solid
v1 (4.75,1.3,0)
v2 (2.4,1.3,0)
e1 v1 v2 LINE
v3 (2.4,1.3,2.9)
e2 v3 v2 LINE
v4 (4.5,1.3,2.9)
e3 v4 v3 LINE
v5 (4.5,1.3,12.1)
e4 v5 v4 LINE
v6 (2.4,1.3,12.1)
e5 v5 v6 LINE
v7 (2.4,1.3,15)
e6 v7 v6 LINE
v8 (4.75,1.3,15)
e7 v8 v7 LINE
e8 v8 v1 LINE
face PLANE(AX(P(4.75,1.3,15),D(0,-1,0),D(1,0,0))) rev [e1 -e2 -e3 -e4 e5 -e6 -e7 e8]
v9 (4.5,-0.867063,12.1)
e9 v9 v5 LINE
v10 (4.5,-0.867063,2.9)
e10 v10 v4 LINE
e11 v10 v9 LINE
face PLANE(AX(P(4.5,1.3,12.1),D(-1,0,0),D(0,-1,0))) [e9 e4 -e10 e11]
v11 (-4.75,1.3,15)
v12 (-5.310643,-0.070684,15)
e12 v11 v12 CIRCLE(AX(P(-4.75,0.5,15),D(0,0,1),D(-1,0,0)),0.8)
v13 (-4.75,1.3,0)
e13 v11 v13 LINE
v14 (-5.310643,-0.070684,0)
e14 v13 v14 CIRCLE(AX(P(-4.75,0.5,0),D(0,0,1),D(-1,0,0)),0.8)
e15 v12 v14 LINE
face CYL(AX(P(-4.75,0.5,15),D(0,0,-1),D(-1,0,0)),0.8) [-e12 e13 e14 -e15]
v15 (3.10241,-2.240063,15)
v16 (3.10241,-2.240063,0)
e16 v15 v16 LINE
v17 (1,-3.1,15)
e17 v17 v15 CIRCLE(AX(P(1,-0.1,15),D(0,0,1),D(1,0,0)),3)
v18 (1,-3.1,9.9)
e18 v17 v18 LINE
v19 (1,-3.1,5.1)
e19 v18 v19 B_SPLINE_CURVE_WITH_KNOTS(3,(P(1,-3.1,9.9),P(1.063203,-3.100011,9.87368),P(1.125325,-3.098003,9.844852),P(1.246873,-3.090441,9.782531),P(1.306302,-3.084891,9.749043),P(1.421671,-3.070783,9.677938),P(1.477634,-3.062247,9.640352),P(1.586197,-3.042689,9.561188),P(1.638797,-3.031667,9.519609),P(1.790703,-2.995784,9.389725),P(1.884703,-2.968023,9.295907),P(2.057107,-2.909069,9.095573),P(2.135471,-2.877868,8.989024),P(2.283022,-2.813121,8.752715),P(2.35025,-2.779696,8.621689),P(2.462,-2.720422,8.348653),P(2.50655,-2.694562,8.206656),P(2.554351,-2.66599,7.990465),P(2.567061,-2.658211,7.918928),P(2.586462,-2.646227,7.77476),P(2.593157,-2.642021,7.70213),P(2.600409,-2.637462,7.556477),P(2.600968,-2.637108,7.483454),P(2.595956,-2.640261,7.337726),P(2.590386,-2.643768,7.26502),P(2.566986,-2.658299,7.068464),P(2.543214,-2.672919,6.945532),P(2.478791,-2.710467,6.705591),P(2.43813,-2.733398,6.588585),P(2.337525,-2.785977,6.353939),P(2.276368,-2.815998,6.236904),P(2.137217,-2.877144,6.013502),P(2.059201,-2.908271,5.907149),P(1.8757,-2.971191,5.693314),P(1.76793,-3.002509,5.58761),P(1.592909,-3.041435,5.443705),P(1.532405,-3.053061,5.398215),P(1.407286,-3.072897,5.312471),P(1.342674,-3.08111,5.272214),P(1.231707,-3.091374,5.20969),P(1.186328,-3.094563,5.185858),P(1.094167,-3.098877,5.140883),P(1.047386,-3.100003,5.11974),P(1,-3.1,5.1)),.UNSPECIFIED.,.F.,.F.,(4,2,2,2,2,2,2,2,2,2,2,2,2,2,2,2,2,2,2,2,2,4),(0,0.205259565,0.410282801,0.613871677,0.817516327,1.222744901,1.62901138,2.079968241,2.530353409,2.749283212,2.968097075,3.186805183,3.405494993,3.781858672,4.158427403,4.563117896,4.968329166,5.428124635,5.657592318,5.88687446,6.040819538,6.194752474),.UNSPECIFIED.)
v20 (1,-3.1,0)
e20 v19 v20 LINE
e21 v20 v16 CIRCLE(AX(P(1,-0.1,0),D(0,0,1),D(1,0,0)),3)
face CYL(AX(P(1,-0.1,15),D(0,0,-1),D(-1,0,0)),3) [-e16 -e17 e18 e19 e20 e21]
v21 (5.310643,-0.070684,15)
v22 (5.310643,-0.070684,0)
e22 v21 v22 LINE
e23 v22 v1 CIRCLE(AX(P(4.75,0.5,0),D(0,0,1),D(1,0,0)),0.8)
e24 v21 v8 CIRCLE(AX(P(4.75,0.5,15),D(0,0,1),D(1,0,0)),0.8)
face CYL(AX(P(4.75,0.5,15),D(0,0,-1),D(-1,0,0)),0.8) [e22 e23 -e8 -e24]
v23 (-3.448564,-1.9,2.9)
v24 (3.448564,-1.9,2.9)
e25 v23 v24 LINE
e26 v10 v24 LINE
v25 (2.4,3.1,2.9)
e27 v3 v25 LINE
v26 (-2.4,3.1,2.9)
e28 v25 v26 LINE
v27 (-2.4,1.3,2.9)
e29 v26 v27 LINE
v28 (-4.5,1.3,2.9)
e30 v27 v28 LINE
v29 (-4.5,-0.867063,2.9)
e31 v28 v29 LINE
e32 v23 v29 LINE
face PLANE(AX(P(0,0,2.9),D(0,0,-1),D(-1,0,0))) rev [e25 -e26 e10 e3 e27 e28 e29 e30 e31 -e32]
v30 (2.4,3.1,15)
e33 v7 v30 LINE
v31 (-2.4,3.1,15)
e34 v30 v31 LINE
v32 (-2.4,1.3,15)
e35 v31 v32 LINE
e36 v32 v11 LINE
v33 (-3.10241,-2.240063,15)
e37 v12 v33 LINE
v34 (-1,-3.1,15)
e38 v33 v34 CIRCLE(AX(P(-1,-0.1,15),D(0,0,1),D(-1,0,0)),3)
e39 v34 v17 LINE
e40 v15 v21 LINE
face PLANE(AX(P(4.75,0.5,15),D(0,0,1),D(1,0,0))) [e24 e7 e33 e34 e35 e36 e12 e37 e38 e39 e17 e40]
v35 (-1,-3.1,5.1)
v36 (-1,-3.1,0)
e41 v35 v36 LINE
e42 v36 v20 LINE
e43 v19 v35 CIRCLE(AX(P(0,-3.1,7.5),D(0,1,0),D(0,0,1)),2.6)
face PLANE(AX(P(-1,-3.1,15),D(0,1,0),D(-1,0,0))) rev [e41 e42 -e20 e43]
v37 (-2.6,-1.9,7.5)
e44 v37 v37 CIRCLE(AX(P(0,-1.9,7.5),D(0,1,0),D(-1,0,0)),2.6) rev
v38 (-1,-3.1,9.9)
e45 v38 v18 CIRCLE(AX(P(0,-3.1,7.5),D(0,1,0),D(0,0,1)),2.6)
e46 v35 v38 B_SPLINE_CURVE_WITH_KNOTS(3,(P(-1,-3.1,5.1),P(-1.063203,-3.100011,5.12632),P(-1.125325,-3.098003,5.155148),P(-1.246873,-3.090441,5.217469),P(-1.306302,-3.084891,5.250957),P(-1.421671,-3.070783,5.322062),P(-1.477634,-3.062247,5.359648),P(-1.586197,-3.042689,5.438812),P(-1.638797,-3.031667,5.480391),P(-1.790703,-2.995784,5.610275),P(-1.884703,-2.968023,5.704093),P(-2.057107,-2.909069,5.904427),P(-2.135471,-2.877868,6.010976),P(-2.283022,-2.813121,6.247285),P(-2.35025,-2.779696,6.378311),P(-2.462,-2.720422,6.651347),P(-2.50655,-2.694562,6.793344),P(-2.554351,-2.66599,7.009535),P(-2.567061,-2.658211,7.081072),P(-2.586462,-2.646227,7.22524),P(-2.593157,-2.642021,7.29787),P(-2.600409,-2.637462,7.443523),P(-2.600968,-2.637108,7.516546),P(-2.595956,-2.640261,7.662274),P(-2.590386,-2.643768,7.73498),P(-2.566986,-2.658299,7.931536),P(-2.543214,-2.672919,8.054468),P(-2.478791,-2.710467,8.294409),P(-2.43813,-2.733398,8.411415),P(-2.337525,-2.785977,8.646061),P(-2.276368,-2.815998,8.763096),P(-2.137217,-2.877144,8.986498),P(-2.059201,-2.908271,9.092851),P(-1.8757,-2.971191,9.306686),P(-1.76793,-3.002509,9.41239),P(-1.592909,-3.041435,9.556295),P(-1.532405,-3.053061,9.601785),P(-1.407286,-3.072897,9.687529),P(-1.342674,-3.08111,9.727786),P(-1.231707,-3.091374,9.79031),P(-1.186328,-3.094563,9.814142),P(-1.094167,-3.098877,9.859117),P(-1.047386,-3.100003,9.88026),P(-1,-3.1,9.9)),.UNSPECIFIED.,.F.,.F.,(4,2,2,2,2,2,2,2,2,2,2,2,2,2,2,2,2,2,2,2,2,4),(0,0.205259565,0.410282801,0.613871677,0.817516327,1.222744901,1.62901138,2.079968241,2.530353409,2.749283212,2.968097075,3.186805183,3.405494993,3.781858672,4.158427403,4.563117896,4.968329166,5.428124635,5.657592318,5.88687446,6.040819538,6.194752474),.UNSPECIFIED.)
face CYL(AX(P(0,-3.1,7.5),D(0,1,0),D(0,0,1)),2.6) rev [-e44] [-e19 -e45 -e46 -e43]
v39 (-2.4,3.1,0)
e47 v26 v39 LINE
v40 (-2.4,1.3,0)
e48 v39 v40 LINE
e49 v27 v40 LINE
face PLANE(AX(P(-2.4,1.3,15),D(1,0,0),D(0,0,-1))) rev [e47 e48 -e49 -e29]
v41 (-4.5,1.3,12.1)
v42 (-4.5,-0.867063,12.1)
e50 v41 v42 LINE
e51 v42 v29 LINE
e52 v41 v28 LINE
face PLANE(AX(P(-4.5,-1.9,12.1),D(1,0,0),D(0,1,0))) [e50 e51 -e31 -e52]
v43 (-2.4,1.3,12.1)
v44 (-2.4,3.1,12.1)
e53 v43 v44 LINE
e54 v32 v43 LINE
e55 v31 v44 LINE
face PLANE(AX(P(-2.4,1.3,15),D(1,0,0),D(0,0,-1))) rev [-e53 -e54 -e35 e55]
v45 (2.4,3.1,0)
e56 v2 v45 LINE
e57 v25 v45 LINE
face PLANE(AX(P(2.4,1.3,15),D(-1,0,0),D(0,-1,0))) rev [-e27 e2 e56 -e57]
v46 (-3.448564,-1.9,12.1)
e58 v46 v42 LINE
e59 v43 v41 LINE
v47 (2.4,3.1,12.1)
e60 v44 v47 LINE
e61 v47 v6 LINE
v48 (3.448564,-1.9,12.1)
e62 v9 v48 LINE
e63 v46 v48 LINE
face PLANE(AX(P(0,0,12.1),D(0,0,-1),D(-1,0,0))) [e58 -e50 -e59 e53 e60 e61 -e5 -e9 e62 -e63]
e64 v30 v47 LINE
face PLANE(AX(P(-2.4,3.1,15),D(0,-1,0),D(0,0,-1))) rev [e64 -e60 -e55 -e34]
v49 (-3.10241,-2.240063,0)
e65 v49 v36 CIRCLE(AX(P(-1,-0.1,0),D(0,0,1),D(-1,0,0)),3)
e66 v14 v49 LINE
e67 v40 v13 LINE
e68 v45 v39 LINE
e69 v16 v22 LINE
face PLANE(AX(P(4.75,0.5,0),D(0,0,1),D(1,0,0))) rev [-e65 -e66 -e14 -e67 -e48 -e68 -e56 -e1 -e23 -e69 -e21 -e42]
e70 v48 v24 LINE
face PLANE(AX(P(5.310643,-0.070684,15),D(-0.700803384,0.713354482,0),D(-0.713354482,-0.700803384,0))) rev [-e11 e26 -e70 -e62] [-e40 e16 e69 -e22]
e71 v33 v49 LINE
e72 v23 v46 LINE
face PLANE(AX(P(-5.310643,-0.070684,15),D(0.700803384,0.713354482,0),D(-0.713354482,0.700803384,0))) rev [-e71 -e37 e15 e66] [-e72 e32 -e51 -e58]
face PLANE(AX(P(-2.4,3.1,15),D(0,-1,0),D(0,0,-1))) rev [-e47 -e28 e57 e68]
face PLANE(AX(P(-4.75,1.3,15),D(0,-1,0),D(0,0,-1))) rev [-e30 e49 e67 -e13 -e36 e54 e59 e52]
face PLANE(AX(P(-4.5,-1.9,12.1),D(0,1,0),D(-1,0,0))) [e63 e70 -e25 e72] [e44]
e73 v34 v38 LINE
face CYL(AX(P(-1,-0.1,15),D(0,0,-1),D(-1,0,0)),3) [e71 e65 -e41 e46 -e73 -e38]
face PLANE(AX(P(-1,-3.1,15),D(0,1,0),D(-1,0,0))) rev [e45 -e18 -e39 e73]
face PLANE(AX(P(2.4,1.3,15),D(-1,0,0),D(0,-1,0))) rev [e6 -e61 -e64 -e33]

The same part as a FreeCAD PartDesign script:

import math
import FreeCAD as App
import Part
import Sketcher
from FreeCAD import Vector
Q = App.Units.Quantity


def add_polygon(sketch, points):
    """Adds a closed chain of lines whose ends are joined by coincident constraints."""
    first, n = sketch.GeometryCount, len(points)
    for a, b in zip(points, points[1:] + points[:1]):
        sketch.addGeometry(Part.LineSegment(App.Vector(*a, 0), App.Vector(*b, 0)), False)
    for i in range(n):
        sketch.addConstraint(Sketcher.Constraint("Coincident", first + i, 2, first + (i + 1) % n, 1))

doc = App.newDocument("Part")
body = doc.addObject("PartDesign::Body", "Body")

sketch1 = body.newObject("Sketcher::SketchObject", "Sketch")
sketch1.AttachmentSupport = (doc.getObject("XY_Plane"), [""])
sketch1.MapMode = "FlatFace"
sketch1.addGeometry([
    Part.LineSegment(Vector(-2.4, 1.3, 0), Vector(-4.8, 1.3, 0)),
    Part.ArcOfCircle(Part.Circle(Vector(-4.7, 0.5, 0), Vector(0, 0, 1), 0.8), math.radians(90), math.radians(226)),
    Part.LineSegment(Vector(-5.3, -0.1, 0), Vector(-3.1, -2.2, 0)),
    Part.ArcOfCircle(Part.Circle(Vector(-1, -0.1, 0), Vector(0, 0, 1), 3), math.radians(-134), math.radians(-90)),
    Part.LineSegment(Vector(-1, -3.1, 0), Vector(1, -3.1, 0)),
    Part.ArcOfCircle(Part.Circle(Vector(1, -0.1, 0), Vector(0, 0, 1), 3), math.radians(-90), math.radians(-46)),
    Part.LineSegment(Vector(3.1, -2.2, 0), Vector(5.3, -0.1, 0)),
    Part.ArcOfCircle(Part.Circle(Vector(4.7, 0.5, 0), Vector(0, 0, 1), 0.8), math.radians(-46), math.radians(90)),
    Part.LineSegment(Vector(4.8, 1.3, 0), Vector(2.4, 1.3, 0)),
    Part.LineSegment(Vector(2.4, 1.3, 0), Vector(2.4, 3.1, 0)),
    Part.LineSegment(Vector(2.4, 3.1, 0), Vector(-2.4, 3.1, 0)),
    Part.LineSegment(Vector(-2.4, 3.1, 0), Vector(-2.4, 1.3, 0)),
], False)
sketch1.addConstraint([
    Sketcher.Constraint("Tangent", 0, 2, 1, 1),
    Sketcher.Constraint("Tangent", 1, 2, 2, 1),
    Sketcher.Constraint("Tangent", 2, 2, 3, 1),
    Sketcher.Constraint("Tangent", 3, 2, 4, 1),
    Sketcher.Constraint("Tangent", 4, 2, 5, 1),
    Sketcher.Constraint("Tangent", 5, 2, 6, 1),
    Sketcher.Constraint("Tangent", 6, 2, 7, 1),
    Sketcher.Constraint("Tangent", 7, 2, 8, 1),
    Sketcher.Constraint("Coincident", 8, 2, 9, 1),
    Sketcher.Constraint("Coincident", 9, 2, 10, 1),
    Sketcher.Constraint("Coincident", 10, 2, 11, 1),
    Sketcher.Constraint("Coincident", 11, 2, 0, 1),
    Sketcher.Constraint("Horizontal", 0),
    Sketcher.Constraint("Horizontal", 4),
    Sketcher.Constraint("Horizontal", 8),
    Sketcher.Constraint("Vertical", 9),
    Sketcher.Constraint("Horizontal", 10),
    Sketcher.Constraint("Vertical", 11),
    Sketcher.Constraint("Equal", 3, 5),
    Sketcher.Constraint("Equal", 1, 7),
    Sketcher.Constraint("Symmetric", 1, 3, 7, 3, -2),
    Sketcher.Constraint("Horizontal", 2, 2, 5, 2),
    Sketcher.Constraint("Equal", 0, 8),
    Sketcher.Constraint("Radius", 3, Q("3 mm")),
    Sketcher.Constraint("Radius", 1, Q("0.8 mm")),
    Sketcher.Constraint("DistanceX", 4, 1, 4, 2, Q("2 mm")),
    Sketcher.Constraint("DistanceX", 10, 2, 10, 1, Q("4.8 mm")),
    Sketcher.Constraint("DistanceY", 9, 1, 9, 2, Q("1.8 mm")),
    Sketcher.Constraint("DistanceX", 0, 2, 0, 1, Q("2.35 mm")),
    Sketcher.Constraint("DistanceY", -1, 1, 1, 3, Q("0.5 mm")),
    Sketcher.Constraint("DistanceY", 3, 3, -1, 1, Q("0.1 mm")),
])
pad1 = body.newObject("PartDesign::Pad", "Pad")
pad1.Profile = sketch1
pad1.Length = 15

sketch2 = body.newObject("Sketcher::SketchObject", "Sketch001")
sketch2.AttachmentSupport = (doc.getObject("XZ_Plane"), [""])
sketch2.MapMode = "FlatFace"
sketch2.AttachmentOffset = App.Placement(Vector(0, 0, -3.1), App.Rotation())
sketch2.addGeometry(Part.Circle(Vector(0, 7.5, 0), Vector(0, 0, 1), 2.6), False)
sketch2.addConstraint([
    Sketcher.Constraint("PointOnObject", 0, 3, -2),
    Sketcher.Constraint("Diameter", 0, Q("5.2 mm")),
    Sketcher.Constraint("DistanceY", -1, 1, 0, 3, Q("7.5 mm")),
])
pocket1 = body.newObject("PartDesign::Pocket", "Pocket")
pocket1.Profile = sketch2
pocket1.Type = "ThroughAll"
pocket1.Reversed = True

sketch3 = body.newObject("Sketcher::SketchObject", "Sketch002")
sketch3.AttachmentSupport = (doc.getObject("XY_Plane"), [""])
sketch3.MapMode = "FlatFace"
sketch3.AttachmentOffset = App.Placement(Vector(0, 0, 7.5), App.Rotation())
add_polygon(sketch3, [(-4.5, 1.3), (-4.5, -1.9), (4.5, -1.9), (4.5, 1.3)])
sketch3.addConstraint([
    Sketcher.Constraint("Vertical", 0),
    Sketcher.Constraint("Horizontal", 1),
    Sketcher.Constraint("Vertical", 2),
    Sketcher.Constraint("Horizontal", 3),
    Sketcher.Constraint("DistanceX", 1, 1, 1, 2, Q("9 mm")),
    Sketcher.Constraint("DistanceY", 0, 2, 0, 1, Q("3.2 mm")),
    Sketcher.Constraint("DistanceX", 0, 2, -1, 1, Q("4.5 mm")),
    Sketcher.Constraint("DistanceY", 0, 2, -1, 1, Q("1.9 mm")),
])
pocket2 = body.newObject("PartDesign::Pocket", "Pocket001")
pocket2.Profile = sketch3
pocket2.Type = "TwoLengths"
pocket2.Length = 4.6
pocket2.Length2 = 4.6
pocket2.Reversed = True

sketch4 = body.newObject("Sketcher::SketchObject", "Sketch003")
sketch4.AttachmentSupport = (doc.getObject("XZ_Plane"), [""])
sketch4.MapMode = "FlatFace"
sketch4.AttachmentOffset = App.Placement(Vector(0, 0, -1.3), App.Rotation())
add_polygon(sketch4, [(-4, 3), (-4, 12), (4, 12), (4, 3)])
sketch4.addConstraint([
    Sketcher.Constraint("Vertical", 0),
    Sketcher.Constraint("Horizontal", 1),
    Sketcher.Constraint("Vertical", 2),
    Sketcher.Constraint("Horizontal", 3),
    Sketcher.Constraint("DistanceX", 1, 1, 1, 2, Q("9 mm")),
    Sketcher.Constraint("DistanceY", 0, 1, 0, 2, Q("9.2 mm")),
    Sketcher.Constraint("DistanceX", 0, 2, -1, 1, Q("4.5 mm")),
    Sketcher.Constraint("DistanceY", -1, 1, 0, 2, Q("12.1 mm")),
])
pocket3 = body.newObject("PartDesign::Pocket", "Pocket002")
pocket3.Profile = sketch4
pocket3.Type = "ThroughAll"

doc.recompute()
